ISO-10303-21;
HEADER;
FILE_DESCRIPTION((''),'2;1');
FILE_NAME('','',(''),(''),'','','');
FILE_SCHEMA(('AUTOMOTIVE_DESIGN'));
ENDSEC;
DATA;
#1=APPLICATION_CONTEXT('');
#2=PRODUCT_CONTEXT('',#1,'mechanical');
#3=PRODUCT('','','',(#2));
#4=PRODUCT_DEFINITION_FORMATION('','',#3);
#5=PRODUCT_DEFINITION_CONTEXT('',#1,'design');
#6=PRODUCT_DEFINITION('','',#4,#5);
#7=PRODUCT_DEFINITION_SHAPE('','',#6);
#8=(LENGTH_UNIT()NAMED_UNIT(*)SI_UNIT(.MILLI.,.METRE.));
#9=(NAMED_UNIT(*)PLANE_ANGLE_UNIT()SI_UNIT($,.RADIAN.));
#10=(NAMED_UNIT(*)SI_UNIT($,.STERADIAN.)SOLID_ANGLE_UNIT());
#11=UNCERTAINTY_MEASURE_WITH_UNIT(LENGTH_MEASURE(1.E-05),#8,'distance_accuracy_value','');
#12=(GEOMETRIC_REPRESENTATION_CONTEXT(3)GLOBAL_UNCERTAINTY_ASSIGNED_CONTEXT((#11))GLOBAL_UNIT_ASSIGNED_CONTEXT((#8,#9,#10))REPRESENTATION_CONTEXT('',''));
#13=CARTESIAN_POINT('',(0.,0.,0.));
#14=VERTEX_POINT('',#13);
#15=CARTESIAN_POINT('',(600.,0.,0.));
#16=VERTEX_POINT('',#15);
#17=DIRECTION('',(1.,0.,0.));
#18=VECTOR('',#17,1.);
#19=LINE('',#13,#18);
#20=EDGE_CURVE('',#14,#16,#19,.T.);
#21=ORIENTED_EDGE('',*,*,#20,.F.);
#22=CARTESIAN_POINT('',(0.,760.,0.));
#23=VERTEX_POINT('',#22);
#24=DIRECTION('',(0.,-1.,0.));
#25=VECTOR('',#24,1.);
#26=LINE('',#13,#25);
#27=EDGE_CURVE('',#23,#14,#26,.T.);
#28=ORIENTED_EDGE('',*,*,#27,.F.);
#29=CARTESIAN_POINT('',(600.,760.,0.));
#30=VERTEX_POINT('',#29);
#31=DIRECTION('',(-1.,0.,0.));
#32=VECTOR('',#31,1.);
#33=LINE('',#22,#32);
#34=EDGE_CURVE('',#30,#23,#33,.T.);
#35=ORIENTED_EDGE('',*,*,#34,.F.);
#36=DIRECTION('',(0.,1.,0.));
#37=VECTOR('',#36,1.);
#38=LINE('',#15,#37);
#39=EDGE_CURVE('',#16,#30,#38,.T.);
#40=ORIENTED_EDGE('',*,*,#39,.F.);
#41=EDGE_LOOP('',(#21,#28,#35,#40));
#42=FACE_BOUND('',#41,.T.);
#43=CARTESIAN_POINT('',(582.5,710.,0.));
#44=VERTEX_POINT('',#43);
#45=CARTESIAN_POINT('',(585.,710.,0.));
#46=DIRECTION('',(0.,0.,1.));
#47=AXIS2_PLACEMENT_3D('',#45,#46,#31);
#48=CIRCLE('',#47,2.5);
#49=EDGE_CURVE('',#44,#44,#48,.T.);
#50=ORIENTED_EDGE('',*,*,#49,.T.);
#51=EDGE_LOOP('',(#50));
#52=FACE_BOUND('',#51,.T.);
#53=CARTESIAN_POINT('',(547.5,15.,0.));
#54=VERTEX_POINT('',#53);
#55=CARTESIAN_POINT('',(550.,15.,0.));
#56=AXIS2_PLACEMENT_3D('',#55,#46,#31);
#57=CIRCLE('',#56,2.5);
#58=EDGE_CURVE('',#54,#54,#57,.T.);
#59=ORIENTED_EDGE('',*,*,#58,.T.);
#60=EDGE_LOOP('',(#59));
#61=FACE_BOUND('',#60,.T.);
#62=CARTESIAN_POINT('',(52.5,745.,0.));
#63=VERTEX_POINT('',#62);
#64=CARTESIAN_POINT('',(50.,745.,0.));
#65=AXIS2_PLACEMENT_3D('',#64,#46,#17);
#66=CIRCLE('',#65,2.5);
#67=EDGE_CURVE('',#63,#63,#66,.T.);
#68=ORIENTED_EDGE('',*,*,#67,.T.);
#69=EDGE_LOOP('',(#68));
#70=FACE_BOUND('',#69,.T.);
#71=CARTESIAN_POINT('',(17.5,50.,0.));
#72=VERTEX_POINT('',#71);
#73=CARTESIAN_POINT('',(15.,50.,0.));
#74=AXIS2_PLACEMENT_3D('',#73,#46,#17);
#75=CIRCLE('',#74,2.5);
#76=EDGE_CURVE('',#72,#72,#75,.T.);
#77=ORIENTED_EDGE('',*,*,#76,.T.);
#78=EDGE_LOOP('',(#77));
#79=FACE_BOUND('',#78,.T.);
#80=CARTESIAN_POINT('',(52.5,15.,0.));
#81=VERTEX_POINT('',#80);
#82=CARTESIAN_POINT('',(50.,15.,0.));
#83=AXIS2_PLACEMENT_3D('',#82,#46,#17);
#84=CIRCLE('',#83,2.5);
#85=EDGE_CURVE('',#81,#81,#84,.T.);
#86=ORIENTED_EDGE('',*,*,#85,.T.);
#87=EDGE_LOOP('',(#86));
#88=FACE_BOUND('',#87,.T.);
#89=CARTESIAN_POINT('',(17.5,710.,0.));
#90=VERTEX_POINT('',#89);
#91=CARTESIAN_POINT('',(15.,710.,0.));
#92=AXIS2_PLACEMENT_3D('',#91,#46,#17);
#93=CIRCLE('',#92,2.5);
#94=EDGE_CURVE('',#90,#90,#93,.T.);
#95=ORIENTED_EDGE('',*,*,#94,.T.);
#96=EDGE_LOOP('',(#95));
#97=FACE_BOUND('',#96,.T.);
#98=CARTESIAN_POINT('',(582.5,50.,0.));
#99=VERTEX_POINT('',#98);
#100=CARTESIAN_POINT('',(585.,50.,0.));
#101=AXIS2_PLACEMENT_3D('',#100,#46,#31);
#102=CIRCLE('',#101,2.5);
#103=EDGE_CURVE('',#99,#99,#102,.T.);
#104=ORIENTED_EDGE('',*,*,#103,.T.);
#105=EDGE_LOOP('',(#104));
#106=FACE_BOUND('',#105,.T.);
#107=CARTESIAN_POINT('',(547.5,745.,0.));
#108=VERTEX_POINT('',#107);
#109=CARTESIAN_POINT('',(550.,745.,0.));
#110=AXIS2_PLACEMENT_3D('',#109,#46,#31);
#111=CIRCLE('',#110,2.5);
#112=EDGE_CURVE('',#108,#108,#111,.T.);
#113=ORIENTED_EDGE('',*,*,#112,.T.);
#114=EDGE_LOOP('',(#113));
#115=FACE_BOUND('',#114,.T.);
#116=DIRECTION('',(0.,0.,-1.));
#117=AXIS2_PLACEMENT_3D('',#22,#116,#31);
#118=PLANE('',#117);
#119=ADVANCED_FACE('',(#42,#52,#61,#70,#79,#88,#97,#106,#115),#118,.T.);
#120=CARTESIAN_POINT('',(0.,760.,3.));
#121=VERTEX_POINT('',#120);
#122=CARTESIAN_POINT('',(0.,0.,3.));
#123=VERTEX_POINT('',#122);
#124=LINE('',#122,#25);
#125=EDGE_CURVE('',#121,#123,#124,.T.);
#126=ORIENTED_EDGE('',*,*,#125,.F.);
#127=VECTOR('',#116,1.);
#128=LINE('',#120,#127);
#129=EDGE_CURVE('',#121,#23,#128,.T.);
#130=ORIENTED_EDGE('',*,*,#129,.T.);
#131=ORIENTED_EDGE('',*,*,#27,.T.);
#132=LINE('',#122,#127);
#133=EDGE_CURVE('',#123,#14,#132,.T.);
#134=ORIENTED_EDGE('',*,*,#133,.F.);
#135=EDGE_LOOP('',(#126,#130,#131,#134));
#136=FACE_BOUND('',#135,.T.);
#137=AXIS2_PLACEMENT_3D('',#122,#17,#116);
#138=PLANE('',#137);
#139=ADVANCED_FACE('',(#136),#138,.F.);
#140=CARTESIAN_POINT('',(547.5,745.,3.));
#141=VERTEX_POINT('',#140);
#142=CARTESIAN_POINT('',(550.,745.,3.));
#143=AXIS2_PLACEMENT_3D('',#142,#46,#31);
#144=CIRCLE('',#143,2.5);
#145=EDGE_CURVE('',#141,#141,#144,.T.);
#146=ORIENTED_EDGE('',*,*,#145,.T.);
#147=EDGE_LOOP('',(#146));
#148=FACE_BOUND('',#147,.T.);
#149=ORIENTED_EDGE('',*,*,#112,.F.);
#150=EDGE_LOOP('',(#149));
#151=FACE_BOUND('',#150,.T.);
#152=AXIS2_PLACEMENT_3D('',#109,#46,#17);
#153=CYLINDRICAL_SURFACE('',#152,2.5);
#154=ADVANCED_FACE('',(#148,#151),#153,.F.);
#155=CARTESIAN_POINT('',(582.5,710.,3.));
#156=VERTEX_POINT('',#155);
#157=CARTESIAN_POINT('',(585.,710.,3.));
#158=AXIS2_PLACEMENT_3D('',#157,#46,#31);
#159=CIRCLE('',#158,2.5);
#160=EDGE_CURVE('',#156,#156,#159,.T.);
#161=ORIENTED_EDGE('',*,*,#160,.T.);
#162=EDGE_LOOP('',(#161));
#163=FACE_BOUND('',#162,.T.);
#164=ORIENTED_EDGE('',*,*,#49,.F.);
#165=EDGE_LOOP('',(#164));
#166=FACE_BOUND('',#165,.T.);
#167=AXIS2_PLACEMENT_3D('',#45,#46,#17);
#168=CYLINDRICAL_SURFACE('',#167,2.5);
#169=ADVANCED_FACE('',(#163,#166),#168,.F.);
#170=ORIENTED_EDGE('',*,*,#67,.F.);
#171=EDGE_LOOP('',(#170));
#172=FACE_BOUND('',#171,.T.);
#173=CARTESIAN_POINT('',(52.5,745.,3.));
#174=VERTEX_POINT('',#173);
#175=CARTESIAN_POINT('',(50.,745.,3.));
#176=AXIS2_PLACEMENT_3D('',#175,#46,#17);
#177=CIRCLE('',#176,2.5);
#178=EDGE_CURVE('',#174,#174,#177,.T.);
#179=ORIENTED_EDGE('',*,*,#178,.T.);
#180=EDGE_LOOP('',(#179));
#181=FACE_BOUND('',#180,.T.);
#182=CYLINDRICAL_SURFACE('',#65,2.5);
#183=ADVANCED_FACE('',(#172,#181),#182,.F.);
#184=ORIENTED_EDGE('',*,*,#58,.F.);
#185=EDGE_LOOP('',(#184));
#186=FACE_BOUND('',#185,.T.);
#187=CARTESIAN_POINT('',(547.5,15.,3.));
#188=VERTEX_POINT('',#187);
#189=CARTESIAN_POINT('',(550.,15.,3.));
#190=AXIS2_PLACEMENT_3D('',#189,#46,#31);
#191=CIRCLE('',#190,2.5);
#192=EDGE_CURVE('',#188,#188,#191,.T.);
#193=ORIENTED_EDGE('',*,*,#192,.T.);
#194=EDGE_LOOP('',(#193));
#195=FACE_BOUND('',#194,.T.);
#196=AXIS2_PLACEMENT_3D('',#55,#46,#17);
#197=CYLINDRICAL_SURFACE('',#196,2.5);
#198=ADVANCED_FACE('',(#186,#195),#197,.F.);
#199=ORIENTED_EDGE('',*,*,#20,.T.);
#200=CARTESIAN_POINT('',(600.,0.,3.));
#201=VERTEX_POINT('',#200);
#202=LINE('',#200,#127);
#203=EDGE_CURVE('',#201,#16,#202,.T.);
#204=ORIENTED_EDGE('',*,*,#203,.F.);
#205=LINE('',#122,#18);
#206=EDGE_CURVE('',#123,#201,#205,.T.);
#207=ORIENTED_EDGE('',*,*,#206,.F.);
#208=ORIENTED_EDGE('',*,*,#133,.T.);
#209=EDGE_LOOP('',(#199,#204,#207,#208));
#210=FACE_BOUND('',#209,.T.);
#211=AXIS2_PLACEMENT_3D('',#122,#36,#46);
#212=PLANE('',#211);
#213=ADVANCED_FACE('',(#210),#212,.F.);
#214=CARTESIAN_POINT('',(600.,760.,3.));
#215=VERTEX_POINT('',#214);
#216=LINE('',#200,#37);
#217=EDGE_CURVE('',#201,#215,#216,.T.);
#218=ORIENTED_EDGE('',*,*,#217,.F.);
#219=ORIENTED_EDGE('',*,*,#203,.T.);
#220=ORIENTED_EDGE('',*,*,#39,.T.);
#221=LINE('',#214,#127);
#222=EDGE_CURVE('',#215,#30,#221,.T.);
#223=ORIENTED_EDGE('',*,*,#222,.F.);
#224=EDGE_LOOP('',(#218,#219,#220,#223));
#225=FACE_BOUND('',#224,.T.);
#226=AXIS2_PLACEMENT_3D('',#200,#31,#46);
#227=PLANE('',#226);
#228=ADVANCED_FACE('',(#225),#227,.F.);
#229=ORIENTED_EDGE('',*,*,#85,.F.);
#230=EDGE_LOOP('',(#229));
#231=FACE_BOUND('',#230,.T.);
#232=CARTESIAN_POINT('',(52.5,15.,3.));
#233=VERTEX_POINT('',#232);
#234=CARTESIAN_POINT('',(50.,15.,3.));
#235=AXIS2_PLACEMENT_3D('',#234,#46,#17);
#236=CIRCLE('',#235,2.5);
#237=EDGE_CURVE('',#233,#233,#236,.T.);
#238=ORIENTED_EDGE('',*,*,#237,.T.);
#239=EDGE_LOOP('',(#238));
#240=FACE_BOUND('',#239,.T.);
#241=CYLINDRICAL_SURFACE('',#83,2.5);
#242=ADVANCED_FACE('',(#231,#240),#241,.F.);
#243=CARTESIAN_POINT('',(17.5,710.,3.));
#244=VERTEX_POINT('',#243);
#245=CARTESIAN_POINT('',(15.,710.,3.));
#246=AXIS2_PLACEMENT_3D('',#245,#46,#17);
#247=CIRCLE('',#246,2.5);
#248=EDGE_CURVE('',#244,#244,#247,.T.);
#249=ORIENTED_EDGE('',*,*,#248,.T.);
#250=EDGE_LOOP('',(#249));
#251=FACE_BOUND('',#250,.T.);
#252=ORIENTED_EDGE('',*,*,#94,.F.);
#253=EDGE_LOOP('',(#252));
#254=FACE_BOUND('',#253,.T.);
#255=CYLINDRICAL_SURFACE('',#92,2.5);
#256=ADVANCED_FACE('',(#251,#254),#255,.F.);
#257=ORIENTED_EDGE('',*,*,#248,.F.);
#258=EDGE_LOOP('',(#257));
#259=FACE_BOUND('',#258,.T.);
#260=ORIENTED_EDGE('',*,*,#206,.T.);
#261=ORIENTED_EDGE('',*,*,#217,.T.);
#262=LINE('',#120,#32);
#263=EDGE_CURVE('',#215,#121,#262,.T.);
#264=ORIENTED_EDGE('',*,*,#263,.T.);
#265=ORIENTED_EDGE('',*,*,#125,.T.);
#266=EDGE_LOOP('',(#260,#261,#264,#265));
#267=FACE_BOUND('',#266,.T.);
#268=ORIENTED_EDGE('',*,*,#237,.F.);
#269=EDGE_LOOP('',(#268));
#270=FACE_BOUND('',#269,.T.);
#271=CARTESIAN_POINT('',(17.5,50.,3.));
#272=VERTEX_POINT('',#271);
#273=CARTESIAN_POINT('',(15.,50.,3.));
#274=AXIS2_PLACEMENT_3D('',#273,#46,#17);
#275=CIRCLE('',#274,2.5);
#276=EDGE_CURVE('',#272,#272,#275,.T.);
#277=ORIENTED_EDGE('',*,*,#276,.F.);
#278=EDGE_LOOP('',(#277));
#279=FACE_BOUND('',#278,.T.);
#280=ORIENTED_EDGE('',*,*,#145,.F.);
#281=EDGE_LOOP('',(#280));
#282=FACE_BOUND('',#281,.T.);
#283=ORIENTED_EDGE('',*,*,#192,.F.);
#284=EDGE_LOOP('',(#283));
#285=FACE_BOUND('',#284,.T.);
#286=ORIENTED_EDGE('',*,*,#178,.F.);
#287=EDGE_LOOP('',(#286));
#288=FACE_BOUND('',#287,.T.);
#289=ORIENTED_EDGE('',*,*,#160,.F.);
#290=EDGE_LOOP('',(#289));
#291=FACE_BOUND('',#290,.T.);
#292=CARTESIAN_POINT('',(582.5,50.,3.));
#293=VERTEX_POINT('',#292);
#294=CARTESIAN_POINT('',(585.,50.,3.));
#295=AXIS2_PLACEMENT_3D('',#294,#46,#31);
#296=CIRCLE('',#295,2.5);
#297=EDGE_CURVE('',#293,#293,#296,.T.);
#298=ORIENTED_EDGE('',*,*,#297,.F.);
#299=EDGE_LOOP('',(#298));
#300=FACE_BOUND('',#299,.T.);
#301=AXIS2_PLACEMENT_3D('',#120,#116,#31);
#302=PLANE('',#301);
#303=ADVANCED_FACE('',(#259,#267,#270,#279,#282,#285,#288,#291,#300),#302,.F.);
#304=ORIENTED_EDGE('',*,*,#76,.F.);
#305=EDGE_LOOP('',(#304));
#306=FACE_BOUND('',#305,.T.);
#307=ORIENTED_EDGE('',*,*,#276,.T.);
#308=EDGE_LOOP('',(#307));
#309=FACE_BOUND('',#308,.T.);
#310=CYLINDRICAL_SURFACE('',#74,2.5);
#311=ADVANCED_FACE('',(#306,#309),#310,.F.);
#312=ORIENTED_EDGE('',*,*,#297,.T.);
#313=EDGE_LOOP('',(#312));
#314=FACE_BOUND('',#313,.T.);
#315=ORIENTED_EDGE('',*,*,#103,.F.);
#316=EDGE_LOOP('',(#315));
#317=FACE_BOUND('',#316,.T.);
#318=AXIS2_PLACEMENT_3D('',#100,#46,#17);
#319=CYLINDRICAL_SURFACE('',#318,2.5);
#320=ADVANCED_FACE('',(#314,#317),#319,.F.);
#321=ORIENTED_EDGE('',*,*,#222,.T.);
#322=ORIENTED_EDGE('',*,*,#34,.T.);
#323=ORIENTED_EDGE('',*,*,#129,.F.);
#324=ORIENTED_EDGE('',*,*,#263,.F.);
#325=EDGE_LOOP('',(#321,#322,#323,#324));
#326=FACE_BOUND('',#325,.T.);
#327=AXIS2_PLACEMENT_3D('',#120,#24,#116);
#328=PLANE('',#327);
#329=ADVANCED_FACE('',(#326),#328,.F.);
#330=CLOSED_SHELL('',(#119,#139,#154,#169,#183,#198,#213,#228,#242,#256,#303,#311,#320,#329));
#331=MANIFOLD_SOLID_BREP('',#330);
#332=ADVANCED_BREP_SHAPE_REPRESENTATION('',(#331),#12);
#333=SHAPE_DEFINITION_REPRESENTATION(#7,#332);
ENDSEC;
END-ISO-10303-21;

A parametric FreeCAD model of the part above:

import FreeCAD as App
import Part
import Sketcher
from FreeCAD import Vector

doc = App.newDocument("Part")
params = doc.addObject("Spreadsheet::Sheet", "Params")
for row, (alias, value) in enumerate([
    ("sketch1_width", "600 mm"),
    ("sketch1_height", "760 mm"),
    ("pad1_length", "3 mm"),
    ("sketch2_diameter", "5 mm"),
    ("pocket1_length", "3 mm"),
], start=1):
    params.set(f"A{row}", alias)
    params.set(f"B{row}", "=" + value)
    params.setAlias(f"B{row}", alias)

body = doc.addObject("PartDesign::Body", "Body")

# Sketch on XY plane
sketch1 = body.newObject("Sketcher::SketchObject", "Sketch")
sketch1.AttachmentSupport = (doc.getObject("XY_Plane"), [""])
sketch1.MapMode = "FlatFace"
sketch1.addGeometry([
    Part.LineSegment(Vector(0, 760, 0), Vector(0, 0, 0)),
    Part.LineSegment(Vector(0, 0, 0), Vector(600, 0, 0)),
    Part.LineSegment(Vector(600, 0, 0), Vector(600, 760, 0)),
    Part.LineSegment(Vector(600, 760, 0), Vector(0, 760, 0)),
], False)
sketch1.addConstraint([
    Sketcher.Constraint("Coincident", 0, 2, 1, 1),
    Sketcher.Constraint("Coincident", 1, 2, 2, 1),
    Sketcher.Constraint("Coincident", 2, 2, 3, 1),
    Sketcher.Constraint("Coincident", 3, 2, 0, 1),
    Sketcher.Constraint("Vertical", 0),
    Sketcher.Constraint("Horizontal", 1),
    Sketcher.Constraint("Vertical", 2),
    Sketcher.Constraint("Horizontal", 3),
    Sketcher.Constraint("Coincident", 0, 2, -1, 1),
    Sketcher.Constraint("DistanceX", 1, 1, 1, 2, 600.0),
    Sketcher.Constraint("DistanceY", 0, 2, 0, 1, 760.0),
])
sketch1.setExpression("Constraints[9]", "Params.sketch1_width")
sketch1.setExpression("Constraints[10]", "Params.sketch1_height")
pad1 = body.newObject("PartDesign::Pad", "Pad")
pad1.Profile = sketch1
pad1.setExpression("Length", "Params.pad1_length")

# Sketch on XY plane
sketch2 = body.newObject("Sketcher::SketchObject", "Sketch001")
sketch2.AttachmentSupport = (doc.getObject("XY_Plane"), [""])
sketch2.MapMode = "FlatFace"
sketch2.AttachmentOffset = App.Placement(Vector(0, 0, 3), App.Rotation())
sketch2.addGeometry([
    Part.Circle(Vector(50, 745, 0), Vector(0, 0, 1), 2.5),  # 0
    Part.Circle(Vector(15, 710, 0), Vector(0, 0, 1), 2.5),  # 1
    Part.Circle(Vector(15, 50, 0), Vector(0, 0, 1), 2.5),  # 2
    Part.Circle(Vector(50, 15, 0), Vector(0, 0, 1), 2.5),  # 3
    Part.Circle(Vector(550, 15, 0), Vector(0, 0, 1), 2.5),  # 4
    Part.Circle(Vector(585, 50, 0), Vector(0, 0, 1), 2.5),  # 5
    Part.Circle(Vector(585, 710, 0), Vector(0, 0, 1), 2.5),  # 6
    Part.Circle(Vector(550, 745, 0), Vector(0, 0, 1), 2.5),  # 7
], False)
sketch2.addConstraint([
    Sketcher.Constraint("Equal", 0, 1),
    Sketcher.Constraint("Equal", 1, 2),
    Sketcher.Constraint("Equal", 2, 3),
    Sketcher.Constraint("Equal", 3, 4),
    Sketcher.Constraint("Equal", 4, 5),
    Sketcher.Constraint("Equal", 5, 6),
    Sketcher.Constraint("Equal", 6, 7),
    Sketcher.Constraint("Horizontal", 3, 3, 4, 3),
    Sketcher.Constraint("Horizontal", 2, 3, 5, 3),
    Sketcher.Constraint("Horizontal", 1, 3, 6, 3),
    Sketcher.Constraint("Horizontal", 0, 3, 7, 3),
    Sketcher.Constraint("Vertical", 1, 3, 2, 3),
    Sketcher.Constraint("Vertical", 0, 3, 3, 3),
    Sketcher.Constraint("Vertical", 5, 3, 6, 3),
    Sketcher.Constraint("Vertical", 4, 3, 7, 3),
    Sketcher.Constraint("Diameter", 0, 5.0),
    Sketcher.Constraint("DistanceX", -1, 1, 0, 3, 50.0),
    Sketcher.Constraint("DistanceY", -1, 1, 0, 3, 745.0),
    Sketcher.Constraint("DistanceX", -1, 1, 1, 3, 15.0),
    Sketcher.Constraint("DistanceY", -1, 1, 1, 3, 710.0),
    Sketcher.Constraint("DistanceY", -1, 1, 2, 3, 50.0),
    Sketcher.Constraint("DistanceY", -1, 1, 3, 3, 15.0),
    Sketcher.Constraint("DistanceX", -1, 1, 4, 3, 550.0),
    Sketcher.Constraint("DistanceX", -1, 1, 5, 3, 585.0),
])
sketch2.setExpression("Constraints[15]", "Params.sketch2_diameter")
pocket1 = body.newObject("PartDesign::Pocket", "Pocket")
pocket1.Profile = sketch2
pocket1.setExpression("Length", "Params.pocket1_length")

doc.recompute()
